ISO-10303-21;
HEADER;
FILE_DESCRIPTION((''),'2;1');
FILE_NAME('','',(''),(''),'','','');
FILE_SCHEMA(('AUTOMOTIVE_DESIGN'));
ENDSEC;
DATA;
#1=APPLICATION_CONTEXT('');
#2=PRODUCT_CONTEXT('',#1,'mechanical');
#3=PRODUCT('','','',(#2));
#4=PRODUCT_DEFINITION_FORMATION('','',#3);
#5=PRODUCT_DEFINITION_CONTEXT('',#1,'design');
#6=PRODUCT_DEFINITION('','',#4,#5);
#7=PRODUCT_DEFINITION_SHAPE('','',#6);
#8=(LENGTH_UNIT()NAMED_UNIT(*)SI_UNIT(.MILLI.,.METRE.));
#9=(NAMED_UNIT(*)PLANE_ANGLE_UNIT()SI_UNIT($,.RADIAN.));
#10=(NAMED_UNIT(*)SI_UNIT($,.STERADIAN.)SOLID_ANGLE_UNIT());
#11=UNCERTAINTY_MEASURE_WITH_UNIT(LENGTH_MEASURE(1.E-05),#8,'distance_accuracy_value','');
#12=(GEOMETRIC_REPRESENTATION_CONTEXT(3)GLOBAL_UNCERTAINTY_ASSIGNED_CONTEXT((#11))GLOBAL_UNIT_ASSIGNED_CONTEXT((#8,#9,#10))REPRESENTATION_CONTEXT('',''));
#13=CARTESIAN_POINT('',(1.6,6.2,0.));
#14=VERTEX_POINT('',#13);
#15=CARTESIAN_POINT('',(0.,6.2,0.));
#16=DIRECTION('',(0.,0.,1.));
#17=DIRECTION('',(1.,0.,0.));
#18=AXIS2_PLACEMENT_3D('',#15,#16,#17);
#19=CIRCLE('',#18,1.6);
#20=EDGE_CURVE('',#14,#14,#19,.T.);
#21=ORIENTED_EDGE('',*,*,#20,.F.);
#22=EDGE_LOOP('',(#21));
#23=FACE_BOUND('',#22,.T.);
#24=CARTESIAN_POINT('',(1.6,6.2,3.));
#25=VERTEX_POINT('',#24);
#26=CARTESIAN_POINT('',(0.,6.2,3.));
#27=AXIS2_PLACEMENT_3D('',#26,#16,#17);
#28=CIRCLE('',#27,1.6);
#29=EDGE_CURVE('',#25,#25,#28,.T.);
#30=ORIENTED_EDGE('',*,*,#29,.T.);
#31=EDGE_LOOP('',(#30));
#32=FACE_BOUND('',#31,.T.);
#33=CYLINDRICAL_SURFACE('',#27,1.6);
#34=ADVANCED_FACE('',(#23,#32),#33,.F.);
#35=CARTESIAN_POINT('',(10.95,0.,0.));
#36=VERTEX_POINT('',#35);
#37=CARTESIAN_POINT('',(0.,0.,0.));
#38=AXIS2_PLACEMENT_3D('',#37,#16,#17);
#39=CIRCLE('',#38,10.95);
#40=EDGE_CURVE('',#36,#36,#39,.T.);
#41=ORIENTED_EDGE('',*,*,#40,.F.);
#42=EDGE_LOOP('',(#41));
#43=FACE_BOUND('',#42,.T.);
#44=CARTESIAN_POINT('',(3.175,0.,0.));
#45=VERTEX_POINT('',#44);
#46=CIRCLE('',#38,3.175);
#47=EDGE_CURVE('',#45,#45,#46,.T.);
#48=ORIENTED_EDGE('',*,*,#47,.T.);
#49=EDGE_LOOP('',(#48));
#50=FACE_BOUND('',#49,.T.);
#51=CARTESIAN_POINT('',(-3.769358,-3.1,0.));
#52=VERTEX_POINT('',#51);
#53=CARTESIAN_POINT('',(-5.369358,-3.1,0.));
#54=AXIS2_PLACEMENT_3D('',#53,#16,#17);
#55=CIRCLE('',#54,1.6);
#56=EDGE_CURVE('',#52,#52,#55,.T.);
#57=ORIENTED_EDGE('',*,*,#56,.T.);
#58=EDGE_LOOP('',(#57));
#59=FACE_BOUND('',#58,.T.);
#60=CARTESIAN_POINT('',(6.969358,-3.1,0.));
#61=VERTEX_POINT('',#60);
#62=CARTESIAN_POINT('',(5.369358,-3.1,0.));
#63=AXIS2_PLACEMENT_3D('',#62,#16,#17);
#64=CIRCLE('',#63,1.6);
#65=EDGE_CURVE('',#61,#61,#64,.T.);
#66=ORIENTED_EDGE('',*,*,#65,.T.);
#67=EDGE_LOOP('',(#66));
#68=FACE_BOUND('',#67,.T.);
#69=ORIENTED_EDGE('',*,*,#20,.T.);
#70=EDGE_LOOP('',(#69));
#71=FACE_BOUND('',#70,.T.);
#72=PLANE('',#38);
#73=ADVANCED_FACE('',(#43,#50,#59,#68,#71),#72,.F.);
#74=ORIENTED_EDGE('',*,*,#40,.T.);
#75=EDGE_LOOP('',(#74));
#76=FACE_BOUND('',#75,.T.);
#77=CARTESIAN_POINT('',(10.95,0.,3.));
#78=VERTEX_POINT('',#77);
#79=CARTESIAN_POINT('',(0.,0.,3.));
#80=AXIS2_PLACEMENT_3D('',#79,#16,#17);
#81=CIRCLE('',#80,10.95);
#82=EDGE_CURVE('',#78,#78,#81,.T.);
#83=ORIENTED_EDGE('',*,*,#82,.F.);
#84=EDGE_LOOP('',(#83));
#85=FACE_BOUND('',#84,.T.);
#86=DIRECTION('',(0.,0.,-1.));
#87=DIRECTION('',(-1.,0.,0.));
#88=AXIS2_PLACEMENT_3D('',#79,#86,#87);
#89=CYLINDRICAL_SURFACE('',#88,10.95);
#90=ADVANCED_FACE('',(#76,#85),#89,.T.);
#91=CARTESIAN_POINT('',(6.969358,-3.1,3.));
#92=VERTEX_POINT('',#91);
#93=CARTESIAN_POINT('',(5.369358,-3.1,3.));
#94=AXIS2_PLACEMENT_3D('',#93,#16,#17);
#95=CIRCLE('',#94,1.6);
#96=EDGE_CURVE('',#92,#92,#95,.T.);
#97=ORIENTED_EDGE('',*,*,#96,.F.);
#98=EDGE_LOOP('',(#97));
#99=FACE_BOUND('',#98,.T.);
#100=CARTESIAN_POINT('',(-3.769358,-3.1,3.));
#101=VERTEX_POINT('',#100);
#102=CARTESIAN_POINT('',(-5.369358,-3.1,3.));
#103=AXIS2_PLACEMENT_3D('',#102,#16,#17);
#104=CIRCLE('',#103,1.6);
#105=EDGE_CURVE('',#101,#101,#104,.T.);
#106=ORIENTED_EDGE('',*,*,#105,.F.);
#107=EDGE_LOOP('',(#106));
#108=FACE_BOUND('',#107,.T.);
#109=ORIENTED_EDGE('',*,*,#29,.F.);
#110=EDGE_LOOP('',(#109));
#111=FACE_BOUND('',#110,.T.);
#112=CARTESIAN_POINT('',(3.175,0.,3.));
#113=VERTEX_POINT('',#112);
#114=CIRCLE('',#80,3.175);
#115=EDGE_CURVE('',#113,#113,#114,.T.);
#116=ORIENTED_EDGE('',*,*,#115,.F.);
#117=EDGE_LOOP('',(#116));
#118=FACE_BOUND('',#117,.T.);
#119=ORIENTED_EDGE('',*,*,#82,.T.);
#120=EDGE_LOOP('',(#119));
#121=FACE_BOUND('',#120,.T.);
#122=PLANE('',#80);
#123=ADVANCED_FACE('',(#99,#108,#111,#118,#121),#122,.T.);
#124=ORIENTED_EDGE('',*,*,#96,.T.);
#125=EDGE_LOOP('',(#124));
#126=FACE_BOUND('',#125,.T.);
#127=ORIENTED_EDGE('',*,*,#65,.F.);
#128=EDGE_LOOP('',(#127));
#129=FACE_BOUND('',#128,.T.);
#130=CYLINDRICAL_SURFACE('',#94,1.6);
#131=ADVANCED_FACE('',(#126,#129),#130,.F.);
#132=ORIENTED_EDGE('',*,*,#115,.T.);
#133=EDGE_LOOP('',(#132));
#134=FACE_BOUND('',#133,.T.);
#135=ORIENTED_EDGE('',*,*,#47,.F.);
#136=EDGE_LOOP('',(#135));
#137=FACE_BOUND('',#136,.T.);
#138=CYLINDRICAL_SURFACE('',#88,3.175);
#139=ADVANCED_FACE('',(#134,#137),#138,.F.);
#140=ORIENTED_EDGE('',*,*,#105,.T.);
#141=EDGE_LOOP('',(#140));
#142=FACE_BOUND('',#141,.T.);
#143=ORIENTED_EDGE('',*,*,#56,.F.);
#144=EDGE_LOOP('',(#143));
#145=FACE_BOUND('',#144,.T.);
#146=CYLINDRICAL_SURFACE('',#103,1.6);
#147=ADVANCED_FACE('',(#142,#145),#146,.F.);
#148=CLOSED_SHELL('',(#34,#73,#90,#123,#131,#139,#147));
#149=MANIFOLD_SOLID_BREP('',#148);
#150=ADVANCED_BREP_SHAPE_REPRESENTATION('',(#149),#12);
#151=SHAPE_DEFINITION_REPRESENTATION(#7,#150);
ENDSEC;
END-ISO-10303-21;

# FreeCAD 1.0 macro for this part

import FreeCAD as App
import Part
import Sketcher

doc = App.newDocument("Part")
body = doc.addObject("PartDesign::Body", "Body")

# Sketch on XY plane
sketch1 = doc.addObject("Sketcher::SketchObject", "Sketch")
body.addObject(sketch1)
sketch1.AttachmentSupport = (doc.XY_Plane, [""])
sketch1.MapMode = "FlatFace"
sketch1.addGeometry([
    Part.Circle(App.Vector(0, 0, 0), App.Vector(0, 0, 1), 10.9),
    Part.Circle(App.Vector(0, 0, 0), App.Vector(0, 0, 1), 3.2),
], False)
sketch1.addConstraint([
    Sketcher.Constraint("Coincident", 0, 3, -1, 1),
    Sketcher.Constraint("Coincident", 1, 3, -1, 1),
    Sketcher.Constraint("Diameter", 0, 21.9),
    Sketcher.Constraint("Diameter", 1, 6.35),
])
pad1 = doc.addObject("PartDesign::Pad", "Pad")
body.addObject(pad1)
pad1.Profile = sketch1
pad1.Length = 3

# Sketch on XY plane
sketch2 = doc.addObject("Sketcher::SketchObject", "Sketch001")
body.addObject(sketch2)
sketch2.AttachmentSupport = (doc.XY_Plane, [""])
sketch2.MapMode = "FlatFace"
sketch2.AttachmentOffset = App.Placement(App.Vector(0, 0, 3), App.Rotation())
sketch2.addGeometry([
    Part.Circle(App.Vector(0, 6.2, 0), App.Vector(0, 0, 1), 1.6),
    Part.Circle(App.Vector(-5.4, -3.1, 0), App.Vector(0, 0, 1), 1.6),
    Part.Circle(App.Vector(5.4, -3.1, 0), App.Vector(0, 0, 1), 1.6),
], False)
sketch2.addConstraint([
    Sketcher.Constraint("Equal", 0, 1),
    Sketcher.Constraint("Equal", 1, 2),
    Sketcher.Constraint("Symmetric", 1, 3, 2, 3, -2),
    Sketcher.Constraint("PointOnObject", 0, 3, -2),
    Sketcher.Constraint("Diameter", 0, 3.2),
    Sketcher.Constraint("DistanceY", -1, 1, 0, 3, 6.2),
    Sketcher.Constraint("DistanceY", 1, 3, -1, 1, 3.1),
    Sketcher.Constraint("DistanceX", 1, 3, -1, 1, 5.369358),
])
doc.recompute()
hole = doc.addObject("PartDesign::Hole", "Hole")
body.addObject(hole)
hole.Profile = sketch2
hole.ThreadType = "None"
hole.Diameter = 3.2
hole.DepthType = "ThroughAll"

doc.recompute()
